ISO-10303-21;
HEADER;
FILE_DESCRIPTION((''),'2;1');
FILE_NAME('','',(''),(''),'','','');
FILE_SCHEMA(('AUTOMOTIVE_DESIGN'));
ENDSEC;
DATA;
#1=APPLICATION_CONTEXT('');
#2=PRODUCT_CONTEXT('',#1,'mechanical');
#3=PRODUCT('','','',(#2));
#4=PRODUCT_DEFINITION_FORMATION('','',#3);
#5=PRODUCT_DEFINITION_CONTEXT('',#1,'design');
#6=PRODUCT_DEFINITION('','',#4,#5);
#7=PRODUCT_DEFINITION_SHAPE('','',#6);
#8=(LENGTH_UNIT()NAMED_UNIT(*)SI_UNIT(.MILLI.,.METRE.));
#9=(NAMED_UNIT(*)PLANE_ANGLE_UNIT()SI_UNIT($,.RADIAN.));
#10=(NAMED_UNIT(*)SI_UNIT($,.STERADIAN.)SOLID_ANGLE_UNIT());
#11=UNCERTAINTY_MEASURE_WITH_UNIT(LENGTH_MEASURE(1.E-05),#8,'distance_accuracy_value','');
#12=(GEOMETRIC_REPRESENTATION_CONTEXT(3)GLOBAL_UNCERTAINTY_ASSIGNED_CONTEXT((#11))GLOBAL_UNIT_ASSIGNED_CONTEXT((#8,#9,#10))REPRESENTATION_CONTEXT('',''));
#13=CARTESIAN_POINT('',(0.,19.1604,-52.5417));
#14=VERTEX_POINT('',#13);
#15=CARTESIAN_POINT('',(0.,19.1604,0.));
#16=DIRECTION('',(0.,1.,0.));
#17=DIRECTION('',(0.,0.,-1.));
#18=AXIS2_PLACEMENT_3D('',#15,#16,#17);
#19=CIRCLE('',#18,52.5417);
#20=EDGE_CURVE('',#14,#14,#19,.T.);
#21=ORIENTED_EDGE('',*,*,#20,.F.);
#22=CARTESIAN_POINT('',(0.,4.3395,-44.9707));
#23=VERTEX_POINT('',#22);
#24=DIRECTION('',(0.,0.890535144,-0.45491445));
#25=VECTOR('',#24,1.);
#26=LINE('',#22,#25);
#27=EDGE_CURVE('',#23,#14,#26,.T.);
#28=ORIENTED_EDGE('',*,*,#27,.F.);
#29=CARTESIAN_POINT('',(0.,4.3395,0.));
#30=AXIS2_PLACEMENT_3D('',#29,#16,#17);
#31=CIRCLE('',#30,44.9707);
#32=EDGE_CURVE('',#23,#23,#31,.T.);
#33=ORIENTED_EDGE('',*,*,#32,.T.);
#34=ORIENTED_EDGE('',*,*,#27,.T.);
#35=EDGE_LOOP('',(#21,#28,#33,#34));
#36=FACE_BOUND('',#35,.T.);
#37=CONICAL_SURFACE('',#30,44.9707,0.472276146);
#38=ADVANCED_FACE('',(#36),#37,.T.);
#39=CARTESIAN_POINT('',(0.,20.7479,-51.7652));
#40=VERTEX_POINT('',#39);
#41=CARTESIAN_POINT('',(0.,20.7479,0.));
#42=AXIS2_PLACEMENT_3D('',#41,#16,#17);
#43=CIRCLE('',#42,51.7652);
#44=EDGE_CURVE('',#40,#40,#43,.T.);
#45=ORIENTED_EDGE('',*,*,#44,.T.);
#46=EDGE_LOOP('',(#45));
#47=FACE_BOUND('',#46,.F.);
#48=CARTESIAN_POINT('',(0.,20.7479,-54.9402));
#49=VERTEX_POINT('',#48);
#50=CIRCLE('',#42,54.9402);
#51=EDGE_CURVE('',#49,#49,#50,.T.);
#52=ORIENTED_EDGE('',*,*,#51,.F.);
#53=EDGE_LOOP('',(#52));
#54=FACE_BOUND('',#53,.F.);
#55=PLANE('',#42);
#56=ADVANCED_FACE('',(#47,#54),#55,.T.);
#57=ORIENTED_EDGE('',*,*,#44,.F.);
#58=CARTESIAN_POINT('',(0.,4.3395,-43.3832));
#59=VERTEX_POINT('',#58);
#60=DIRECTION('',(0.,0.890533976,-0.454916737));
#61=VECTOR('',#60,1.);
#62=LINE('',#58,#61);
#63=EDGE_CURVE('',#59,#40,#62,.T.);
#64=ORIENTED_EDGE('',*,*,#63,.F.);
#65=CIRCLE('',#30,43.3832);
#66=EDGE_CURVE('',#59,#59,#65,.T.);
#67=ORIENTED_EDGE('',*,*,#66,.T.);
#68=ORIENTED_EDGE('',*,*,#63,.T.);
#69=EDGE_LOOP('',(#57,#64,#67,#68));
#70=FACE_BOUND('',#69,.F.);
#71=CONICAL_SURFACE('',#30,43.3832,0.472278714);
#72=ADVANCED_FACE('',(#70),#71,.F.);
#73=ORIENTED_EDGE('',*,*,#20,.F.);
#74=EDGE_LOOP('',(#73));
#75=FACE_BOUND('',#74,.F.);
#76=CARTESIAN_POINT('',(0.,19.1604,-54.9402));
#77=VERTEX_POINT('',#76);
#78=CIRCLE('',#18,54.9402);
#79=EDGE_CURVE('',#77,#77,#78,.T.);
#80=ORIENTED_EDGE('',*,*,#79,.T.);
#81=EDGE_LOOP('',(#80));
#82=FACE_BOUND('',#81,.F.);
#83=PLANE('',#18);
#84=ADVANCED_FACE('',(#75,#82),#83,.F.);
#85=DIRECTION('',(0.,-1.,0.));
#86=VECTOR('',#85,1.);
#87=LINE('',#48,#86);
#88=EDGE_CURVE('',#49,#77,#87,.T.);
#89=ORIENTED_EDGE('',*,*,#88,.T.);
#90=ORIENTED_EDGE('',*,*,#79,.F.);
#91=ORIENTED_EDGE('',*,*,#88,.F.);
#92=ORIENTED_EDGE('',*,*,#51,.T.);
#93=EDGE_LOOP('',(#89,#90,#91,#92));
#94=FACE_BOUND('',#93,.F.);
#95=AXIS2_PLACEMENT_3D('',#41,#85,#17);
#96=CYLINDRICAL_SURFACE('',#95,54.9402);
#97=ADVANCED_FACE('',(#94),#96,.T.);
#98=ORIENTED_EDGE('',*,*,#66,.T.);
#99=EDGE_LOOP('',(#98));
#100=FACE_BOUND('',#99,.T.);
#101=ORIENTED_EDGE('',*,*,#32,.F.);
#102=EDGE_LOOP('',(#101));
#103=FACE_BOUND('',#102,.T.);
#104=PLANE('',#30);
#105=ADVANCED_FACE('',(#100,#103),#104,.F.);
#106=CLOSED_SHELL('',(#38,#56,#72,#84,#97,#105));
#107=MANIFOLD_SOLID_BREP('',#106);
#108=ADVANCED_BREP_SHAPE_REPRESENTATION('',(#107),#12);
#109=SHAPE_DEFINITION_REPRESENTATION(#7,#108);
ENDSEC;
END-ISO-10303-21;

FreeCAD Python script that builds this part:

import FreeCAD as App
import Part
import Sketcher
from FreeCAD import Vector
Q = App.Units.Quantity

doc = App.newDocument("Part")
body = doc.addObject("PartDesign::Body", "Body")

# Sketch on YZ plane
sketch1 = body.newObject("Sketcher::SketchObject", "Sketch")
sketch1.AttachmentSupport = (doc.getObject("YZ_Plane"), [""])
sketch1.MapMode = "FlatFace"
sketch1.addGeometry(Part.LineSegment(Vector(20.7, -51.8, 0), Vector(4.3, -43.4, 0)), False)
sketch1.addGeometry(Part.LineSegment(Vector(4.3, -43.4, 0), Vector(4.3, -45, 0)), False)
sketch1.addGeometry(Part.LineSegment(Vector(4.3, -45, 0), Vector(19.2, -52.5, 0)), False)
sketch1.addGeometry(Part.LineSegment(Vector(19.2, -52.5, 0), Vector(19.2, -54.9, 0)), False)
sketch1.addGeometry(Part.LineSegment(Vector(19.2, -54.9, 0), Vector(20.7, -54.9, 0)), False)
sketch1.addGeometry(Part.LineSegment(Vector(20.7, -54.9, 0), Vector(20.7, -51.8, 0)), False)
sketch1.addConstraint(Sketcher.Constraint("Coincident", 0, 2, 1, 1))
sketch1.addConstraint(Sketcher.Constraint("Coincident", 1, 2, 2, 1))
sketch1.addConstraint(Sketcher.Constraint("Coincident", 2, 2, 3, 1))
sketch1.addConstraint(Sketcher.Constraint("Coincident", 3, 2, 4, 1))
sketch1.addConstraint(Sketcher.Constraint("Coincident", 4, 2, 5, 1))
sketch1.addConstraint(Sketcher.Constraint("Coincident", 5, 2, 0, 1))
sketch1.addConstraint(Sketcher.Constraint("Vertical", 1))
sketch1.addConstraint(Sketcher.Constraint("Vertical", 3))
sketch1.addConstraint(Sketcher.Constraint("Horizontal", 4))
sketch1.addConstraint(Sketcher.Constraint("Vertical", 5))
sketch1.addConstraint(Sketcher.Constraint("Parallel", 0, 2))
sketch1.addConstraint(Sketcher.Constraint("Equal", 4, 1))
sketch1.addConstraint(Sketcher.Constraint("DistanceX", 4, 1, 4, 2, Q("0.0625 in")))
sketch1.addConstraint(Sketcher.Constraint("DistanceY", 5, 1, 5, 2, Q("0.125 in")))
sketch1.addConstraint(Sketcher.Constraint("DistanceY", 5, 2, -1, 1, Q("2.038 in")))
sketch1.addConstraint(Sketcher.Constraint("Angle", 0, Q("152.9404 deg")))
sketch1.addConstraint(Sketcher.Constraint("DistanceY", 5, 2, 0, 2, Q("0.33 in")))
sketch1.addConstraint(Sketcher.Constraint("DistanceX", -1, 1, 0, 2, 4.3395))
revolution = body.newObject("PartDesign::Revolution", "Revolution")
revolution.Profile = sketch1
revolution.ReferenceAxis = (sketch1, ["H_Axis"])
revolution.Angle = 360

doc.recompute()
